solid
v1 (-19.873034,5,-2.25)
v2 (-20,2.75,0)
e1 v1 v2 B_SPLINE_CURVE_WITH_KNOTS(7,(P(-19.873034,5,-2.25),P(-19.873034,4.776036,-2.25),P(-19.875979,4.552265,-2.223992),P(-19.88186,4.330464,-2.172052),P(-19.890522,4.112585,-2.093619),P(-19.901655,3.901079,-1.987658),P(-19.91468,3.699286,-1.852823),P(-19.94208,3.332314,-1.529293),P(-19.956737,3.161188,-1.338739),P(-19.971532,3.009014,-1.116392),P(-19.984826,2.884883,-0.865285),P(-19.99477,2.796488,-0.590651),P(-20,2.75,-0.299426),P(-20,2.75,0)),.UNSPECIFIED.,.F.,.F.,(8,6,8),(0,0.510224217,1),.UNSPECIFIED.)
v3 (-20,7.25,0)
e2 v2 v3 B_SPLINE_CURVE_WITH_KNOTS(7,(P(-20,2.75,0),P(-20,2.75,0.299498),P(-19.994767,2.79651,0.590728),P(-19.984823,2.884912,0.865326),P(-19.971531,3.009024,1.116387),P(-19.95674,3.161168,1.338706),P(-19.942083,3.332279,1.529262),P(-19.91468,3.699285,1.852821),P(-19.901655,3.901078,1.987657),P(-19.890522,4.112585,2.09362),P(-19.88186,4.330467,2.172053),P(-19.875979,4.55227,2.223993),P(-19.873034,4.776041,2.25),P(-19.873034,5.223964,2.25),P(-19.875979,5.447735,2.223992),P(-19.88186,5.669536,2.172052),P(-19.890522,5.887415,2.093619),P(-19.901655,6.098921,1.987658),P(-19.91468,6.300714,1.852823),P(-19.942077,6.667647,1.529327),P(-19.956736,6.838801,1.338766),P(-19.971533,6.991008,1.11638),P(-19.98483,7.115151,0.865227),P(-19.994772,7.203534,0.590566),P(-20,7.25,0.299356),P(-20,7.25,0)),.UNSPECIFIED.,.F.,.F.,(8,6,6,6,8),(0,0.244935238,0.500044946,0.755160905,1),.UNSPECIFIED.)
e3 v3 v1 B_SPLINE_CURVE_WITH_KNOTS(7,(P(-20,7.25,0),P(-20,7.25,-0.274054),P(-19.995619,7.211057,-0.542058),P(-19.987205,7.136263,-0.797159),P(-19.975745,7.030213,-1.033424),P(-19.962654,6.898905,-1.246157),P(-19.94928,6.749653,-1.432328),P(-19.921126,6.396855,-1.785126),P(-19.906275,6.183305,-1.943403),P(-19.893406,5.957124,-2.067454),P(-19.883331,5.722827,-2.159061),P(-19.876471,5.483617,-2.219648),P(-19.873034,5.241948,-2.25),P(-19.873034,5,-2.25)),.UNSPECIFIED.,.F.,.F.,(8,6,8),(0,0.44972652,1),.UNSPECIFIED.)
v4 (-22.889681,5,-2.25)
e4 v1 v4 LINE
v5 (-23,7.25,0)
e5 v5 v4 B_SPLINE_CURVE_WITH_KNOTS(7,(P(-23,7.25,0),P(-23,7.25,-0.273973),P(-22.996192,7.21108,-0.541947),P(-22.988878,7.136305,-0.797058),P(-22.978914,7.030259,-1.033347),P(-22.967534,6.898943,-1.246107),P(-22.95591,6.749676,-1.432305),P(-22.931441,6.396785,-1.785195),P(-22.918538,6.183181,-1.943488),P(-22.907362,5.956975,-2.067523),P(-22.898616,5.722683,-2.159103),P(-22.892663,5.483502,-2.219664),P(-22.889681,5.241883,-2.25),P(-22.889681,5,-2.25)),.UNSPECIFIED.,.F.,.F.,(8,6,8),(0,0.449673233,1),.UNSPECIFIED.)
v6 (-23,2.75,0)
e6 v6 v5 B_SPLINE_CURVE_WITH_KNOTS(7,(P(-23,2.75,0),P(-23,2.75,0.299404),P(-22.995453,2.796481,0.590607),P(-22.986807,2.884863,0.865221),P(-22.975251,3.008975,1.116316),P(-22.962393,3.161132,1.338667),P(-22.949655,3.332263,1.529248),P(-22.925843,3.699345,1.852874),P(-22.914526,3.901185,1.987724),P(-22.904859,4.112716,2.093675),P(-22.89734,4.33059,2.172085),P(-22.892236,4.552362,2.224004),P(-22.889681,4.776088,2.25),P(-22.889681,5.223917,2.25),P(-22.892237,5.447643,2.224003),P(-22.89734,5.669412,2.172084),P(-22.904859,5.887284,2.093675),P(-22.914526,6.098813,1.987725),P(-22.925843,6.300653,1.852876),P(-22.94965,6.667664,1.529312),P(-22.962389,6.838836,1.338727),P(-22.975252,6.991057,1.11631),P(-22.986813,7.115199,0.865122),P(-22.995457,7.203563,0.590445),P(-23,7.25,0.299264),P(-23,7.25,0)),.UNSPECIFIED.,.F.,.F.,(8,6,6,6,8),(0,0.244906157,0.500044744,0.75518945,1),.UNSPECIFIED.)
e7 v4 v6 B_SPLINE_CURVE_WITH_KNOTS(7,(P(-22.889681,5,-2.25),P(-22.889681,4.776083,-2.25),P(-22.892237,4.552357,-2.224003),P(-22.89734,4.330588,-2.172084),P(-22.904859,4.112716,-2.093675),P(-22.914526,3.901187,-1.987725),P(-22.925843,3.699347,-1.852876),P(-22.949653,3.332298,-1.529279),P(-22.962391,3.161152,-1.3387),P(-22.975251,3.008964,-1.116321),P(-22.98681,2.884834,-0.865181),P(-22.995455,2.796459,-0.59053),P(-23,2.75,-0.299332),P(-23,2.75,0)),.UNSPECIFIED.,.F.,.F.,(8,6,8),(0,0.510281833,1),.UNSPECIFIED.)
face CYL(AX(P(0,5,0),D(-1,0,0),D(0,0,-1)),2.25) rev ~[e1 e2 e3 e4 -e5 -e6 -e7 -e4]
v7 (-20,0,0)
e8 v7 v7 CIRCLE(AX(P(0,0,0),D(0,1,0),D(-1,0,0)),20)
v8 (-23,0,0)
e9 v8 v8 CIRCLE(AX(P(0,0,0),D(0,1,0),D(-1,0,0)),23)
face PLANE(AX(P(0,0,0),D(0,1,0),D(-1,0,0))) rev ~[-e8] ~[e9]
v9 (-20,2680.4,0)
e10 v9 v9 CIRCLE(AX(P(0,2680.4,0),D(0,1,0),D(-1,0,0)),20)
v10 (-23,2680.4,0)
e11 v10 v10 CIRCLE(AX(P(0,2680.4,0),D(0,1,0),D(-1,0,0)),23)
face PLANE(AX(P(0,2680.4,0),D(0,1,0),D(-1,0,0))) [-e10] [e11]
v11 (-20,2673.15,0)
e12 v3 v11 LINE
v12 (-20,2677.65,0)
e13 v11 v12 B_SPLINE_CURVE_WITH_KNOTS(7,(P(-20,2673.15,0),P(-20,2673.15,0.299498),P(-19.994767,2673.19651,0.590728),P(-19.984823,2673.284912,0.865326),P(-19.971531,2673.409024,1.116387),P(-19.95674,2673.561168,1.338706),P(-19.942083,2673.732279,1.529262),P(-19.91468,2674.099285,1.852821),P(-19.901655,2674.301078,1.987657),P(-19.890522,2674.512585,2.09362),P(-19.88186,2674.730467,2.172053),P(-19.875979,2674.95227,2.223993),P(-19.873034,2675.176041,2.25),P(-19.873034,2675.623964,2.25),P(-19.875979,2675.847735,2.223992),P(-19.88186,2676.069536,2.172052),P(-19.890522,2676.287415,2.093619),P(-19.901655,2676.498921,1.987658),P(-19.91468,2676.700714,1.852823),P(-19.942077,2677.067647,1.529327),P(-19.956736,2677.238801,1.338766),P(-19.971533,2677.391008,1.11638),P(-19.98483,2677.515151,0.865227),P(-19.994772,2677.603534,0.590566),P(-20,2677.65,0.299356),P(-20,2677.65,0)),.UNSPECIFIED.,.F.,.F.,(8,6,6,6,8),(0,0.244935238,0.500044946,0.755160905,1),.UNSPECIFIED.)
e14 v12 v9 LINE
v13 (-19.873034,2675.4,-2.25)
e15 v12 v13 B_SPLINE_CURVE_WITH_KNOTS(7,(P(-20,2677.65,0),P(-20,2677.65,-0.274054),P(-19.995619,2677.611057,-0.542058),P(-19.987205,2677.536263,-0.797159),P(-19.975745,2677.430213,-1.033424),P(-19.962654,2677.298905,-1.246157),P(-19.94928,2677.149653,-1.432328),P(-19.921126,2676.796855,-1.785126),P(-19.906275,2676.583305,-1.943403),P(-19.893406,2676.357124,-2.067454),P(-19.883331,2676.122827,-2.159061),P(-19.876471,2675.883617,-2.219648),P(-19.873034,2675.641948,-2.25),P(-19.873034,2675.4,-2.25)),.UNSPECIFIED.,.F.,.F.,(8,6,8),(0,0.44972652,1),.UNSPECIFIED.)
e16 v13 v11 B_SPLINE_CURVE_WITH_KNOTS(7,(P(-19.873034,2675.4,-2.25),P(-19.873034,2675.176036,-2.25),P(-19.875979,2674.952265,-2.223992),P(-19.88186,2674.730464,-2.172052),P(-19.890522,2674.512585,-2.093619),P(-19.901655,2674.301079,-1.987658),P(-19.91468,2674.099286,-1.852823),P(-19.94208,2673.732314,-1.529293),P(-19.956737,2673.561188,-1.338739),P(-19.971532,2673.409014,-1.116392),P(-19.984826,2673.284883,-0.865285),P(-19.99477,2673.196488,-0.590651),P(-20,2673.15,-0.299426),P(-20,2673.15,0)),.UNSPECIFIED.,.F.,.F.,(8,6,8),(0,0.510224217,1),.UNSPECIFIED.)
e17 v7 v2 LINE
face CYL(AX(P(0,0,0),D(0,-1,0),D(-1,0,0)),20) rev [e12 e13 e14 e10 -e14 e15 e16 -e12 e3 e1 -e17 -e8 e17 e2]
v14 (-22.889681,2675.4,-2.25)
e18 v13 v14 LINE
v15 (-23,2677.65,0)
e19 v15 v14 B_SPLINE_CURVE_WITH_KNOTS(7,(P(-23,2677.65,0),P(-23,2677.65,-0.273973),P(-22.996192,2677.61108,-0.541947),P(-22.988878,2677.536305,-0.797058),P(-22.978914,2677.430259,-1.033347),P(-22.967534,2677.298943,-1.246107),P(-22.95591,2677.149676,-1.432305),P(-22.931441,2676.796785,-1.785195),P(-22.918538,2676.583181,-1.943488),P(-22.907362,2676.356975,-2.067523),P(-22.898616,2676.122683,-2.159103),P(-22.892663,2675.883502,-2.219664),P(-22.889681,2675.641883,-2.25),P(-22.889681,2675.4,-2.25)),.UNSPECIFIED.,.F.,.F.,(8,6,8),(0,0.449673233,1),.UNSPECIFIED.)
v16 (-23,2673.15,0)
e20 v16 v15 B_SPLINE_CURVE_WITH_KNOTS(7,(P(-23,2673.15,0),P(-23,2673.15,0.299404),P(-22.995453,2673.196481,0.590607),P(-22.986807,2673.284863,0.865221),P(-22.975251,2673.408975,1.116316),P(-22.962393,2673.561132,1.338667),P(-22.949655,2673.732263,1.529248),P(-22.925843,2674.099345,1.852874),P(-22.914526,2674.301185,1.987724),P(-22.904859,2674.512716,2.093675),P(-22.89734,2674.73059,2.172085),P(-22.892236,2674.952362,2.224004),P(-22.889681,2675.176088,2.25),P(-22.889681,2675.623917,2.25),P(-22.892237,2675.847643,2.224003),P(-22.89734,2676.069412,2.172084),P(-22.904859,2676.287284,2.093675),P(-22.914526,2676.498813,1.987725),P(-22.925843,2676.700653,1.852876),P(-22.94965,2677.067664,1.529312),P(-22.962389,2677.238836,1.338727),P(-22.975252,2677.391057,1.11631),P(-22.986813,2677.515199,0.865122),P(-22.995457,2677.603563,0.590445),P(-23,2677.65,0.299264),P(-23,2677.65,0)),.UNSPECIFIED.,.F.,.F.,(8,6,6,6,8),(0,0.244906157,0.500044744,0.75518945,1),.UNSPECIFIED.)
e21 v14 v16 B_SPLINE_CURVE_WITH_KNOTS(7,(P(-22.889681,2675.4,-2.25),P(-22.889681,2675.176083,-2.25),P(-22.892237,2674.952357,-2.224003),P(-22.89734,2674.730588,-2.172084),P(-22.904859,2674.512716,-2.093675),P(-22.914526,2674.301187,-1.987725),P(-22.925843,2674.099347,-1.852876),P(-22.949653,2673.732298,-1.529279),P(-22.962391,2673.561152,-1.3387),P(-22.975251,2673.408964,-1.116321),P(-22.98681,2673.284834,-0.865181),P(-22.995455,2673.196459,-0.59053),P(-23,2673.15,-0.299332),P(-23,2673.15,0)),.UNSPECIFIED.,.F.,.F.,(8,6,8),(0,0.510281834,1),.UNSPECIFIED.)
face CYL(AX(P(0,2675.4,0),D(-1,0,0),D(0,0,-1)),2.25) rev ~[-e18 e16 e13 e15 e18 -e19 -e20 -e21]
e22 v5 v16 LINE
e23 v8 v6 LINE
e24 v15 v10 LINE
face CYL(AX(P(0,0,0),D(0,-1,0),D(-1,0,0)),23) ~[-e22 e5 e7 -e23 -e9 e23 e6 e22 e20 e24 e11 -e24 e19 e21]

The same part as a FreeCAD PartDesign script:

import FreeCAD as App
import Part
import Sketcher
from FreeCAD import Vector
Q = App.Units.Quantity

doc = App.newDocument("Part")
params = doc.addObject("Spreadsheet::Sheet", "Params")
for row, (alias, value) in enumerate([
    ("sketch1_diameter", "40 mm"),
    ("sketch1_diameter2", "46 mm"),
    ("pad1_length", "2680.4 mm"),
    ("sketch2_diameter", "4.5 mm"),
    ("hole_diameter", "4.5 mm"),
], start=1):
    params.set(f"A{row}", alias)
    params.set(f"B{row}", "=" + value)
    params.setAlias(f"B{row}", alias)

body = doc.addObject("PartDesign::Body", "Body")

sketch1 = doc.addObject("Sketcher::SketchObject", "Sketch")
body.addObject(sketch1)
sketch1.AttachmentSupport = (doc.XZ_Plane, [""])
sketch1.MapMode = "FlatFace"
sketch1.addGeometry([
    Part.Circle(Vector(0, 0, 0), Vector(0, 0, 1), 23),
    Part.Circle(Vector(0, 0, 0), Vector(0, 0, 1), 20),
], False)
sketch1.addConstraint([
    Sketcher.Constraint("Coincident", 0, 3, -1, 1),
    Sketcher.Constraint("Coincident", 1, 3, -1, 1),
    Sketcher.Constraint("Diameter", 1, Q("40 mm")),
    Sketcher.Constraint("Diameter", 0, Q("46 mm")),
])
sketch1.setExpression("Constraints[2]", "Params.sketch1_diameter")
sketch1.setExpression("Constraints[3]", "Params.sketch1_diameter2")
pad1 = doc.addObject("PartDesign::Pad", "Pad")
body.addObject(pad1)
pad1.Profile = sketch1
pad1.setExpression("Length", "Params.pad1_length")
pad1.Reversed = True

sketch2 = doc.addObject("Sketcher::SketchObject", "Sketch001")
body.addObject(sketch2)
sketch2.AttachmentSupport = (doc.YZ_Plane, [""])
sketch2.MapMode = "FlatFace"
sketch2.addGeometry([
    Part.Circle(Vector(5, 0, 0), Vector(0, 0, 1), 2.2),
    Part.Circle(Vector(2675.4, 0, 0), Vector(0, 0, 1), 2.2),
], False)
sketch2.addConstraint([
    Sketcher.Constraint("Equal", 0, 1),
    Sketcher.Constraint("PointOnObject", 0, 3, -1),
    Sketcher.Constraint("PointOnObject", 1, 3, -1),
    Sketcher.Constraint("Diameter", 0, Q("4.5 mm")),
    Sketcher.Constraint("DistanceX", -1, 1, 0, 3, Q("5 mm")),
    Sketcher.Constraint("DistanceX", -1, 1, 1, 3, Q("2675.4 mm")),
])
sketch2.setExpression("Constraints[3]", "Params.sketch2_diameter")
doc.recompute()
hole = doc.addObject("PartDesign::Hole", "Hole")
body.addObject(hole)
hole.Profile = sketch2
hole.ThreadType = "None"
hole.setExpression("Diameter", "Params.hole_diameter")
hole.DepthType = "ThroughAll"

doc.recompute()
